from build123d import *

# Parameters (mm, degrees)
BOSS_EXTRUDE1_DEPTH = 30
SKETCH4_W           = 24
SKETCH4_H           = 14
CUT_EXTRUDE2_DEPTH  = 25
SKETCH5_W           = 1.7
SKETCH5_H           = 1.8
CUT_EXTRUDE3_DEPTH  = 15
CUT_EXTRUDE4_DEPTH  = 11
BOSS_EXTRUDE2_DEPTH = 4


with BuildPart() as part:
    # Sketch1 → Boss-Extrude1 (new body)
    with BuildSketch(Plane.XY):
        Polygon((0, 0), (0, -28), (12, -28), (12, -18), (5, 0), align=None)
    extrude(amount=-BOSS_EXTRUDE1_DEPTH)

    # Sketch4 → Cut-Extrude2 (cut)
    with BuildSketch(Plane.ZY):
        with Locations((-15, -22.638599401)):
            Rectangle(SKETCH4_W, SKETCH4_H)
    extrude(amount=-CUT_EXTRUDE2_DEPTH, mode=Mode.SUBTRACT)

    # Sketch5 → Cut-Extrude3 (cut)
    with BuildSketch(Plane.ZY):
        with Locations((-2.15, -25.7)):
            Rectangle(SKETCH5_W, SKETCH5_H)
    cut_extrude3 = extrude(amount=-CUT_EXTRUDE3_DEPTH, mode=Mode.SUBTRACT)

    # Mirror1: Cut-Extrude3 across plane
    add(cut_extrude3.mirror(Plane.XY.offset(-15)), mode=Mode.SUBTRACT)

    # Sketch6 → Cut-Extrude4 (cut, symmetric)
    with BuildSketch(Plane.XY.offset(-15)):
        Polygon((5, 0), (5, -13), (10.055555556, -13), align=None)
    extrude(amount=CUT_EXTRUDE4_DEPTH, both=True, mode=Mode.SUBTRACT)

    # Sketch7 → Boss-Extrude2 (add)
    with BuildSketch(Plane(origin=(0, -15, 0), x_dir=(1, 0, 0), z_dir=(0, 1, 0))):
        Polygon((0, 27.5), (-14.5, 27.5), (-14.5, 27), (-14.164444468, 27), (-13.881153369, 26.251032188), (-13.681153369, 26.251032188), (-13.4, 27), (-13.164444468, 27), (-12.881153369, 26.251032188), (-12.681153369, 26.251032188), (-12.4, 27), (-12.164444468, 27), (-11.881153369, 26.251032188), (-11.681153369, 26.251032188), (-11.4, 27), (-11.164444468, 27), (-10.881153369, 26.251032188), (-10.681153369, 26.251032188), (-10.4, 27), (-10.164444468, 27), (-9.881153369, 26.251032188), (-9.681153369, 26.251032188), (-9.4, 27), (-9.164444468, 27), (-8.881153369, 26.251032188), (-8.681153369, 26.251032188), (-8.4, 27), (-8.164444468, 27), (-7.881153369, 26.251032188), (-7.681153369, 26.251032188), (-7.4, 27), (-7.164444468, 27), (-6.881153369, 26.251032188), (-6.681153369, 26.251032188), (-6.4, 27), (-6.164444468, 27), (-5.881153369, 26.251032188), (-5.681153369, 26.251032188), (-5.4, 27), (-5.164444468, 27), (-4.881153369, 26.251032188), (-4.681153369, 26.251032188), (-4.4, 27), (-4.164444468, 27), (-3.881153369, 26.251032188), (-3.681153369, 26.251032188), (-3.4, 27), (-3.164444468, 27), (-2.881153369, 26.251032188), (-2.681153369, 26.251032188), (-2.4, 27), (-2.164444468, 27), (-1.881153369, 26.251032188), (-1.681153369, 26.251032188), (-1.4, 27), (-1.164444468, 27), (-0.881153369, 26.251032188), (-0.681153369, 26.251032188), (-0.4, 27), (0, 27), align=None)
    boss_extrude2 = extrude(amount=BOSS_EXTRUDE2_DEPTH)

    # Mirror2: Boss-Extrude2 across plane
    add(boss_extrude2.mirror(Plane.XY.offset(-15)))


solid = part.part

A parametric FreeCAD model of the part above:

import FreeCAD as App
import Part
import Sketcher

V = App.Vector
Q = App.Units.Quantity


def add_polygon(sketch, points):
    """Adds a closed chain of lines whose ends are joined by coincident constraints."""
    first, n = sketch.GeometryCount, len(points)
    for a, b in zip(points, points[1:] + points[:1]):
        sketch.addGeometry(Part.LineSegment(App.Vector(*a, 0), App.Vector(*b, 0)), False)
    for i in range(n):
        sketch.addConstraint(Sketcher.Constraint("Coincident", first + i, 2, first + (i + 1) % n, 1))

doc = App.newDocument("Part")
body = doc.addObject("PartDesign::Body", "Body")

sketch1 = body.newObject("Sketcher::SketchObject", "Sketch")
sketch1.AttachmentSupport = (doc.getObject("XY_Plane"), [""])
sketch1.MapMode = "FlatFace"
add_polygon(sketch1, [(0, 0), (0, -28), (12, -28), (12, -18), (5, 0)])
sketch1.addConstraint(Sketcher.Constraint("Vertical", 0))
sketch1.addConstraint(Sketcher.Constraint("Horizontal", 1))
sketch1.addConstraint(Sketcher.Constraint("Vertical", 2))
sketch1.addConstraint(Sketcher.Constraint("Horizontal", 4))
sketch1.addConstraint(Sketcher.Constraint("Coincident", 4, 2, -1, 1))
sketch1.addConstraint(Sketcher.Constraint("DistanceX", 1, 1, 1, 2, Q("12 mm")))
sketch1.addConstraint(Sketcher.Constraint("DistanceX", 4, 2, 4, 1, Q("5 mm")))
sketch1.addConstraint(Sketcher.Constraint("DistanceY", 0, 2, 0, 1, Q("28 mm")))
sketch1.addConstraint(Sketcher.Constraint("DistanceY", 2, 1, 2, 2, Q("10 mm")))
pad1 = body.newObject("PartDesign::Pad", "Pad")
pad1.Profile = sketch1
pad1.Length = 30
pad1.Reversed = True

sketch2 = body.newObject("Sketcher::SketchObject", "Sketch001")
sketch2.AttachmentSupport = (doc.getObject("YZ_Plane"), [""])
sketch2.MapMode = "FlatFace"
add_polygon(sketch2, [(-16, -27), (-30, -27), (-30, -3), (-16, -3)])
sketch2.addConstraint(Sketcher.Constraint("Horizontal", 0))
sketch2.addConstraint(Sketcher.Constraint("Vertical", 1))
sketch2.addConstraint(Sketcher.Constraint("Horizontal", 2))
sketch2.addConstraint(Sketcher.Constraint("Vertical", 3))
sketch2.addConstraint(Sketcher.Constraint("DistanceX", 0, 2, 0, 1, Q("14 mm")))
sketch2.addConstraint(Sketcher.Constraint("DistanceY", 1, 1, 1, 2, Q("24 mm")))
sketch2.addConstraint(Sketcher.Constraint("DistanceY", 0, 2, -1, 1, Q("27 mm")))
sketch2.addConstraint(Sketcher.Constraint("DistanceX", 0, 2, -1, 1, Q("29.638599 mm")))
pocket1 = body.newObject("PartDesign::Pocket", "Pocket")
pocket1.Profile = sketch2
pocket1.Length = 25
pocket1.Reversed = True

sketch3 = body.newObject("Sketcher::SketchObject", "Sketch002")
sketch3.AttachmentSupport = (doc.getObject("YZ_Plane"), [""])
sketch3.MapMode = "FlatFace"
add_polygon(sketch3, [(-24.8, -3), (-26.6, -3), (-26.6, -1.3), (-24.8, -1.3)])
sketch3.addConstraint(Sketcher.Constraint("Horizontal", 0))
sketch3.addConstraint(Sketcher.Constraint("Vertical", 1))
sketch3.addConstraint(Sketcher.Constraint("Horizontal", 2))
sketch3.addConstraint(Sketcher.Constraint("Vertical", 3))
sketch3.addConstraint(Sketcher.Constraint("DistanceX", 0, 2, 0, 1, Q("1.8 mm")))
sketch3.addConstraint(Sketcher.Constraint("DistanceY", 1, 1, 1, 2, Q("1.7 mm")))
sketch3.addConstraint(Sketcher.Constraint("DistanceY", 0, 2, -1, 1, Q("3 mm")))
sketch3.addConstraint(Sketcher.Constraint("DistanceX", 0, 2, -1, 1, Q("26.6 mm")))
pocket2 = body.newObject("PartDesign::Pocket", "Pocket001")
pocket2.Profile = sketch3
pocket2.Length = 15
pocket2.Reversed = True
doc.recompute()

datumplane = body.newObject("PartDesign::Plane", "DatumPlane")
datumplane.AttachmentSupport = (doc.getObject("XY_Plane"), [""])
datumplane.MapMode = "FlatFace"
datumplane.AttachmentOffset = App.Placement(V(0, 0, -15), App.Rotation())
mirrored = body.newObject("PartDesign::Mirrored", "Mirrored")
mirrored.Originals = [pocket2]
mirrored.MirrorPlane = (datumplane, [""])
body.Tip = mirrored

sketch4 = body.newObject("Sketcher::SketchObject", "Sketch003")
sketch4.AttachmentSupport = (doc.getObject("XY_Plane"), [""])
sketch4.MapMode = "FlatFace"
sketch4.AttachmentOffset = App.Placement(V(0, 0, -15), App.Rotation())
add_polygon(sketch4, [(5, 0), (5, -13), (10, -13)])
sketch4.addConstraint(Sketcher.Constraint("Vertical", 0))
sketch4.addConstraint(Sketcher.Constraint("Horizontal", 1))
sketch4.addConstraint(Sketcher.Constraint("PointOnObject", 2, 2, -1))
sketch4.addConstraint(Sketcher.Constraint("DistanceY", 0, 2, 0, 1, Q("13 mm")))
sketch4.addConstraint(Sketcher.Constraint("DistanceX", -1, 1, 0, 2, Q("5 mm")))
sketch4.addConstraint(Sketcher.Constraint("DistanceX", 1, 1, 1, 2, Q("5.055556 mm")))
pocket3 = body.newObject("PartDesign::Pocket", "Pocket002")
pocket3.Profile = sketch4
pocket3.Length = 22
pocket3.Midplane = True

sketch5 = body.newObject("Sketcher::SketchObject", "Sketch004")
sketch5.AttachmentSupport = (doc.getObject("XZ_Plane"), [""])
sketch5.MapMode = "FlatFace"
sketch5.AttachmentOffset = App.Placement(V(0, 0, 15), App.Rotation())
add_polygon(sketch5, [(0, -27.5), (-14.5, -27.5), (-14.5, -27), (-14.16, -27), (-13.88, -26.25), (-13.68, -26.25), (-13.4, -27), (-13.16, -27), (-12.88, -26.25), (-12.68, -26.25), (-12.4, -27), (-12.16, -27), (-11.88, -26.25), (-11.68, -26.25), (-11.4, -27), (-11.16, -27), (-10.88, -26.25), (-10.68, -26.25), (-10.4, -27), (-10.16, -27), (-9.88, -26.25), (-9.68, -26.25), (-9.4, -27), (-9.16, -27), (-8.88, -26.25), (-8.68, -26.25), (-8.4, -27), (-8.16, -27), (-7.88, -26.25), (-7.68, -26.25), (-7.4, -27), (-7.16, -27), (-6.88, -26.25), (-6.68, -26.25), (-6.4, -27), (-6.16, -27), (-5.88, -26.25), (-5.68, -26.25), (-5.4, -27), (-5.16, -27), (-4.88, -26.25), (-4.68, -26.25), (-4.4, -27), (-4.16, -27), (-3.88, -26.25), (-3.68, -26.25), (-3.4, -27), (-3.16, -27), (-2.88, -26.25), (-2.68, -26.25), (-2.4, -27), (-2.16, -27), (-1.88, -26.25), (-1.68, -26.25), (-1.4, -27), (-1.16, -27), (-0.88, -26.25), (-0.68, -26.25), (-0.4, -27), (0, -27)])
sketch5.addConstraint(Sketcher.Constraint("Horizontal", 0))
sketch5.addConstraint(Sketcher.Constraint("Vertical", 1))
sketch5.addConstraint(Sketcher.Constraint("Horizontal", 2))
sketch5.addConstraint(Sketcher.Constraint("Horizontal", 4))
sketch5.addConstraint(Sketcher.Constraint("Horizontal", 6))
sketch5.addConstraint(Sketcher.Constraint("Horizontal", 8))
sketch5.addConstraint(Sketcher.Constraint("Horizontal", 10))
sketch5.addConstraint(Sketcher.Constraint("Horizontal", 12))
sketch5.addConstraint(Sketcher.Constraint("Horizontal", 14))
sketch5.addConstraint(Sketcher.Constraint("Horizontal", 16))
sketch5.addConstraint(Sketcher.Constraint("Horizontal", 18))
sketch5.addConstraint(Sketcher.Constraint("Horizontal", 20))
sketch5.addConstraint(Sketcher.Constraint("Horizontal", 22))
sketch5.addConstraint(Sketcher.Constraint("Horizontal", 24))
sketch5.addConstraint(Sketcher.Constraint("Horizontal", 26))
sketch5.addConstraint(Sketcher.Constraint("Horizontal", 28))
sketch5.addConstraint(Sketcher.Constraint("Horizontal", 30))
sketch5.addConstraint(Sketcher.Constraint("Horizontal", 32))
sketch5.addConstraint(Sketcher.Constraint("Horizontal", 34))
sketch5.addConstraint(Sketcher.Constraint("Horizontal", 36))
sketch5.addConstraint(Sketcher.Constraint("Horizontal", 38))
sketch5.addConstraint(Sketcher.Constraint("Horizontal", 40))
sketch5.addConstraint(Sketcher.Constraint("Horizontal", 42))
sketch5.addConstraint(Sketcher.Constraint("Horizontal", 44))
sketch5.addConstraint(Sketcher.Constraint("Horizontal", 46))
sketch5.addConstraint(Sketcher.Constraint("Horizontal", 48))
sketch5.addConstraint(Sketcher.Constraint("Horizontal", 50))
sketch5.addConstraint(Sketcher.Constraint("Horizontal", 52))
sketch5.addConstraint(Sketcher.Constraint("Horizontal", 54))
sketch5.addConstraint(Sketcher.Constraint("Horizontal", 56))
sketch5.addConstraint(Sketcher.Constraint("Horizontal", 58))
sketch5.addConstraint(Sketcher.Constraint("Vertical", 59))
sketch5.addConstraint(Sketcher.Constraint("PointOnObject", 58, 2, -2))
sketch5.addConstraint(Sketcher.Constraint("Parallel", 3, 7))
sketch5.addConstraint(Sketcher.Constraint("Parallel", 5, 9))
sketch5.addConstraint(Sketcher.Constraint("Parallel", 7, 11))
sketch5.addConstraint(Sketcher.Constraint("Parallel", 9, 13))
sketch5.addConstraint(Sketcher.Constraint("Parallel", 11, 15))
sketch5.addConstraint(Sketcher.Constraint("Parallel", 13, 17))
sketch5.addConstraint(Sketcher.Constraint("Parallel", 15, 19))
sketch5.addConstraint(Sketcher.Constraint("Parallel", 17, 21))
sketch5.addConstraint(Sketcher.Constraint("Parallel", 19, 23))
sketch5.addConstraint(Sketcher.Constraint("Parallel", 21, 25))
sketch5.addConstraint(Sketcher.Constraint("Parallel", 23, 27))
sketch5.addConstraint(Sketcher.Constraint("Parallel", 25, 29))
sketch5.addConstraint(Sketcher.Constraint("Parallel", 27, 31))
sketch5.addConstraint(Sketcher.Constraint("Parallel", 29, 33))
sketch5.addConstraint(Sketcher.Constraint("Parallel", 31, 35))
sketch5.addConstraint(Sketcher.Constraint("Parallel", 33, 37))
sketch5.addConstraint(Sketcher.Constraint("Parallel", 35, 39))
sketch5.addConstraint(Sketcher.Constraint("Parallel", 37, 41))
sketch5.addConstraint(Sketcher.Constraint("Parallel", 39, 43))
sketch5.addConstraint(Sketcher.Constraint("Parallel", 41, 45))
sketch5.addConstraint(Sketcher.Constraint("Parallel", 43, 47))
sketch5.addConstraint(Sketcher.Constraint("Parallel", 45, 49))
sketch5.addConstraint(Sketcher.Constraint("Parallel", 47, 51))
sketch5.addConstraint(Sketcher.Constraint("Parallel", 49, 53))
sketch5.addConstraint(Sketcher.Constraint("Parallel", 51, 55))
sketch5.addConstraint(Sketcher.Constraint("Parallel", 53, 57))
sketch5.addConstraint(Sketcher.Constraint("Horizontal", 2, 2, 5, 2))
sketch5.addConstraint(Sketcher.Constraint("Horizontal", 4, 2, 7, 2))
sketch5.addConstraint(Sketcher.Constraint("Horizontal", 6, 2, 9, 2))
sketch5.addConstraint(Sketcher.Constraint("Horizontal", 8, 2, 11, 2))
sketch5.addConstraint(Sketcher.Constraint("Horizontal", 10, 2, 13, 2))
sketch5.addConstraint(Sketcher.Constraint("Horizontal", 12, 2, 15, 2))
sketch5.addConstraint(Sketcher.Constraint("Horizontal", 14, 2, 17, 2))
sketch5.addConstraint(Sketcher.Constraint("Horizontal", 16, 2, 19, 2))
sketch5.addConstraint(Sketcher.Constraint("Horizontal", 18, 2, 21, 2))
sketch5.addConstraint(Sketcher.Constraint("Horizontal", 20, 2, 23, 2))
sketch5.addConstraint(Sketcher.Constraint("Horizontal", 22, 2, 25, 2))
sketch5.addConstraint(Sketcher.Constraint("Horizontal", 24, 2, 27, 2))
sketch5.addConstraint(Sketcher.Constraint("Horizontal", 26, 2, 29, 2))
sketch5.addConstraint(Sketcher.Constraint("Horizontal", 28, 2, 31, 2))
sketch5.addConstraint(Sketcher.Constraint("Horizontal", 30, 2, 33, 2))
sketch5.addConstraint(Sketcher.Constraint("Horizontal", 32, 2, 35, 2))
sketch5.addConstraint(Sketcher.Constraint("Horizontal", 34, 2, 37, 2))
sketch5.addConstraint(Sketcher.Constraint("Horizontal", 36, 2, 39, 2))
sketch5.addConstraint(Sketcher.Constraint("Horizontal", 38, 2, 41, 2))
sketch5.addConstraint(Sketcher.Constraint("Horizontal", 40, 2, 43, 2))
sketch5.addConstraint(Sketcher.Constraint("Horizontal", 42, 2, 45, 2))
sketch5.addConstraint(Sketcher.Constraint("Horizontal", 44, 2, 47, 2))
sketch5.addConstraint(Sketcher.Constraint("Horizontal", 46, 2, 49, 2))
sketch5.addConstraint(Sketcher.Constraint("Horizontal", 48, 2, 51, 2))
sketch5.addConstraint(Sketcher.Constraint("Horizontal", 50, 2, 53, 2))
sketch5.addConstraint(Sketcher.Constraint("Horizontal", 52, 2, 55, 2))
sketch5.addConstraint(Sketcher.Constraint("Horizontal", 54, 2, 57, 2))
sketch5.addConstraint(Sketcher.Constraint("Equal", 4, 8))
sketch5.addConstraint(Sketcher.Constraint("Equal", 6, 10))
sketch5.addConstraint(Sketcher.Constraint("Equal", 8, 12))
sketch5.addConstraint(Sketcher.Constraint("Equal", 10, 14))
sketch5.addConstraint(Sketcher.Constraint("Equal", 12, 16))
sketch5.addConstraint(Sketcher.Constraint("Equal", 14, 18))
sketch5.addConstraint(Sketcher.Constraint("Equal", 16, 20))
sketch5.addConstraint(Sketcher.Constraint("Equal", 18, 22))
sketch5.addConstraint(Sketcher.Constraint("Equal", 20, 24))
sketch5.addConstraint(Sketcher.Constraint("Equal", 22, 26))
sketch5.addConstraint(Sketcher.Constraint("Equal", 24, 28))
sketch5.addConstraint(Sketcher.Constraint("Equal", 26, 30))
sketch5.addConstraint(Sketcher.Constraint("Equal", 28, 32))
sketch5.addConstraint(Sketcher.Constraint("Equal", 30, 34))
sketch5.addConstraint(Sketcher.Constraint("Equal", 32, 36))
sketch5.addConstraint(Sketcher.Constraint("Equal", 34, 38))
sketch5.addConstraint(Sketcher.Constraint("Equal", 36, 40))
sketch5.addConstraint(Sketcher.Constraint("Equal", 38, 42))
sketch5.addConstraint(Sketcher.Constraint("Equal", 40, 44))
sketch5.addConstraint(Sketcher.Constraint("Equal", 42, 46))
sketch5.addConstraint(Sketcher.Constraint("Equal", 44, 48))
sketch5.addConstraint(Sketcher.Constraint("Equal", 46, 50))
sketch5.addConstraint(Sketcher.Constraint("Equal", 48, 52))
sketch5.addConstraint(Sketcher.Constraint("Equal", 50, 54))
sketch5.addConstraint(Sketcher.Constraint("Equal", 52, 56))
sketch5.addConstraint(Sketcher.Constraint("DistanceX", 0, 2, 0, 1, Q("14.5 mm")))
sketch5.addConstraint(Sketcher.Constraint("DistanceX", 4, 1, 4, 2, Q("0.2 mm")))
sketch5.addConstraint(Sketcher.Constraint("DistanceX", 58, 1, 58, 2, Q("0.4 mm")))
sketch5.addConstraint(Sketcher.Constraint("DistanceY", 1, 1, 1, 2, Q("0.5 mm")))
sketch5.addConstraint(Sketcher.Constraint("DistanceY", 1, 2, -1, 1, Q("27 mm")))
sketch5.addConstraint(Sketcher.Constraint("DistanceX", 2, 2, 6, 2, Q("1 mm")))
sketch5.addConstraint(Sketcher.Constraint("Distance", 5, Q("0.8 mm")))
sketch5.addConstraint(Sketcher.Constraint("DistanceX", 2, 1, 2, 2, Q("0.335556 mm")))
sketch5.addConstraint(Sketcher.Constraint("DistanceX", 2, 2, 3, 2, Q("0.283291 mm")))
pad2 = body.newObject("PartDesign::Pad", "Pad001")
pad2.Profile = sketch5
pad2.Length = 4
pad2.Reversed = True
doc.recompute()

datumplane2 = body.newObject("PartDesign::Plane", "DatumPlane001")
datumplane2.AttachmentSupport = (doc.getObject("XY_Plane"), [""])
datumplane2.MapMode = "FlatFace"
datumplane2.AttachmentOffset = App.Placement(V(0, 0, -15), App.Rotation())
mirrored2 = body.newObject("PartDesign::Mirrored", "Mirrored001")
mirrored2.Originals = [pad2]
mirrored2.MirrorPlane = (datumplane2, [""])
body.Tip = mirrored2

doc.recompute()
